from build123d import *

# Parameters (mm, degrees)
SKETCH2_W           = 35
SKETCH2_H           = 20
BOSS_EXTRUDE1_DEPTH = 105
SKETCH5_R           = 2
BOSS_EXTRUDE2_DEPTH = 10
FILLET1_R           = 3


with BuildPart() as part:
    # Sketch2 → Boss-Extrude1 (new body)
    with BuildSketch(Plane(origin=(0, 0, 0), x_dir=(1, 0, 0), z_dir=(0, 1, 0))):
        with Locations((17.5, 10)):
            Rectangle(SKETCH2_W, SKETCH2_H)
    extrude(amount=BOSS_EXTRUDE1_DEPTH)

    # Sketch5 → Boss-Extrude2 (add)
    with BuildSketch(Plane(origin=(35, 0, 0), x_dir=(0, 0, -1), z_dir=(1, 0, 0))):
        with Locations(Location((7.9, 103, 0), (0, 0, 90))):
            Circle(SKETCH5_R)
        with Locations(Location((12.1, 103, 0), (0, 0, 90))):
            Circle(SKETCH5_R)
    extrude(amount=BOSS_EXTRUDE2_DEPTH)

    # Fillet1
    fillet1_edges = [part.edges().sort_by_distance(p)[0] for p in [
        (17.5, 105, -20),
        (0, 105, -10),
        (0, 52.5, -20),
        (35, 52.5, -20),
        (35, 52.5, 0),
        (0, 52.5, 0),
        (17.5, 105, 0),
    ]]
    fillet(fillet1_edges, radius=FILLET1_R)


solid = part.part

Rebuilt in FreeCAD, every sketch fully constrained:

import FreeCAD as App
import Part
import Sketcher
from FreeCAD import Vector
Q = App.Units.Quantity


def edges_at(feature, points):
    """Names of the edges that pass closest to the given points."""
    edges = feature.Shape.Edges
    near = lambda p: min(range(len(edges)), key=lambda i: edges[i].distToShape(Part.Vertex(*p))[0])
    return sorted({f"Edge{near(p) + 1}" for p in points})


def add_polygon(sketch, points):
    """Adds a closed chain of lines whose ends are joined by coincident constraints."""
    first, n = sketch.GeometryCount, len(points)
    for a, b in zip(points, points[1:] + points[:1]):
        sketch.addGeometry(Part.LineSegment(App.Vector(*a, 0), App.Vector(*b, 0)), False)
    for i in range(n):
        sketch.addConstraint(Sketcher.Constraint("Coincident", first + i, 2, first + (i + 1) % n, 1))

doc = App.newDocument("Part")
params = doc.addObject("Spreadsheet::Sheet", "Params")
for row, (alias, value) in enumerate([
    ("sketch1_width", "35 mm"),
    ("sketch1_height", "20 mm"),
    ("pad1_length", "105 mm"),
    ("sketch2_diameter", "4 mm"),
    ("pad2_length", "10 mm"),
    ("fillet_radius", "3 mm"),
], start=1):
    params.set(f"A{row}", alias)
    params.set(f"B{row}", "=" + value)
    params.setAlias(f"B{row}", alias)

body = doc.addObject("PartDesign::Body", "Body")

sketch1 = doc.addObject("Sketcher::SketchObject", "Sketch")
body.addObject(sketch1)
sketch1.AttachmentSupport = (doc.XZ_Plane, [""])
sketch1.MapMode = "FlatFace"
add_polygon(sketch1, [(0, -20), (0, 0), (35, 0), (35, -20)])
sketch1.addConstraint([
    Sketcher.Constraint("Vertical", 0),
    Sketcher.Constraint("Horizontal", 1),
    Sketcher.Constraint("Vertical", 2),
    Sketcher.Constraint("Horizontal", 3),
    Sketcher.Constraint("Coincident", 0, 2, -1, 1),
    Sketcher.Constraint("DistanceX", 1, 1, 1, 2, Q("35 mm")),
    Sketcher.Constraint("DistanceY", 0, 1, 0, 2, Q("20 mm")),
])
sketch1.setExpression("Constraints[9]", "Params.sketch1_width")
sketch1.setExpression("Constraints[10]", "Params.sketch1_height")
pad1 = doc.addObject("PartDesign::Pad", "Pad")
body.addObject(pad1)
pad1.Profile = sketch1
pad1.setExpression("Length", "Params.pad1_length")
pad1.Reversed = True

sketch2 = doc.addObject("Sketcher::SketchObject", "Sketch001")
body.addObject(sketch2)
sketch2.AttachmentSupport = (doc.YZ_Plane, [""])
sketch2.MapMode = "FlatFace"
sketch2.AttachmentOffset = App.Placement(Vector(0, 0, 35), App.Rotation())
sketch2.addGeometry([
    Part.Circle(Vector(103, -7.9, 0), Vector(0, 0, 1), 2),
    Part.Circle(Vector(103, -12.1, 0), Vector(0, 0, 1), 2),
], False)
sketch2.addConstraint([
    Sketcher.Constraint("Equal", 0, 1),
    Sketcher.Constraint("Vertical", 0, 3, 1, 3),
    Sketcher.Constraint("Diameter", 0, Q("4 mm")),
    Sketcher.Constraint("DistanceX", -1, 1, 0, 3, Q("103 mm")),
    Sketcher.Constraint("DistanceY", 0, 3, -1, 1, Q("7.9 mm")),
    Sketcher.Constraint("DistanceY", 1, 3, -1, 1, Q("12.1 mm")),
])
sketch2.setExpression("Constraints[2]", "Params.sketch2_diameter")
pad2 = doc.addObject("PartDesign::Pad", "Pad001")
body.addObject(pad2)
pad2.Profile = sketch2
pad2.setExpression("Length", "Params.pad2_length")
doc.recompute()

fillet = doc.addObject("PartDesign::Fillet", "Fillet")
body.addObject(fillet)
fillet.Base = (pad2, edges_at(pad2, [
    (17.5, 105, -20),
    (0, 105, -10),
    (0, 52.5, -20),
    (35, 52.5, -20),
    (35, 52.5, 0),
    (0, 52.5, 0),
    (17.5, 105, 0),
]))
fillet.setExpression("Radius", "Params.fillet_radius")

doc.recompute()
